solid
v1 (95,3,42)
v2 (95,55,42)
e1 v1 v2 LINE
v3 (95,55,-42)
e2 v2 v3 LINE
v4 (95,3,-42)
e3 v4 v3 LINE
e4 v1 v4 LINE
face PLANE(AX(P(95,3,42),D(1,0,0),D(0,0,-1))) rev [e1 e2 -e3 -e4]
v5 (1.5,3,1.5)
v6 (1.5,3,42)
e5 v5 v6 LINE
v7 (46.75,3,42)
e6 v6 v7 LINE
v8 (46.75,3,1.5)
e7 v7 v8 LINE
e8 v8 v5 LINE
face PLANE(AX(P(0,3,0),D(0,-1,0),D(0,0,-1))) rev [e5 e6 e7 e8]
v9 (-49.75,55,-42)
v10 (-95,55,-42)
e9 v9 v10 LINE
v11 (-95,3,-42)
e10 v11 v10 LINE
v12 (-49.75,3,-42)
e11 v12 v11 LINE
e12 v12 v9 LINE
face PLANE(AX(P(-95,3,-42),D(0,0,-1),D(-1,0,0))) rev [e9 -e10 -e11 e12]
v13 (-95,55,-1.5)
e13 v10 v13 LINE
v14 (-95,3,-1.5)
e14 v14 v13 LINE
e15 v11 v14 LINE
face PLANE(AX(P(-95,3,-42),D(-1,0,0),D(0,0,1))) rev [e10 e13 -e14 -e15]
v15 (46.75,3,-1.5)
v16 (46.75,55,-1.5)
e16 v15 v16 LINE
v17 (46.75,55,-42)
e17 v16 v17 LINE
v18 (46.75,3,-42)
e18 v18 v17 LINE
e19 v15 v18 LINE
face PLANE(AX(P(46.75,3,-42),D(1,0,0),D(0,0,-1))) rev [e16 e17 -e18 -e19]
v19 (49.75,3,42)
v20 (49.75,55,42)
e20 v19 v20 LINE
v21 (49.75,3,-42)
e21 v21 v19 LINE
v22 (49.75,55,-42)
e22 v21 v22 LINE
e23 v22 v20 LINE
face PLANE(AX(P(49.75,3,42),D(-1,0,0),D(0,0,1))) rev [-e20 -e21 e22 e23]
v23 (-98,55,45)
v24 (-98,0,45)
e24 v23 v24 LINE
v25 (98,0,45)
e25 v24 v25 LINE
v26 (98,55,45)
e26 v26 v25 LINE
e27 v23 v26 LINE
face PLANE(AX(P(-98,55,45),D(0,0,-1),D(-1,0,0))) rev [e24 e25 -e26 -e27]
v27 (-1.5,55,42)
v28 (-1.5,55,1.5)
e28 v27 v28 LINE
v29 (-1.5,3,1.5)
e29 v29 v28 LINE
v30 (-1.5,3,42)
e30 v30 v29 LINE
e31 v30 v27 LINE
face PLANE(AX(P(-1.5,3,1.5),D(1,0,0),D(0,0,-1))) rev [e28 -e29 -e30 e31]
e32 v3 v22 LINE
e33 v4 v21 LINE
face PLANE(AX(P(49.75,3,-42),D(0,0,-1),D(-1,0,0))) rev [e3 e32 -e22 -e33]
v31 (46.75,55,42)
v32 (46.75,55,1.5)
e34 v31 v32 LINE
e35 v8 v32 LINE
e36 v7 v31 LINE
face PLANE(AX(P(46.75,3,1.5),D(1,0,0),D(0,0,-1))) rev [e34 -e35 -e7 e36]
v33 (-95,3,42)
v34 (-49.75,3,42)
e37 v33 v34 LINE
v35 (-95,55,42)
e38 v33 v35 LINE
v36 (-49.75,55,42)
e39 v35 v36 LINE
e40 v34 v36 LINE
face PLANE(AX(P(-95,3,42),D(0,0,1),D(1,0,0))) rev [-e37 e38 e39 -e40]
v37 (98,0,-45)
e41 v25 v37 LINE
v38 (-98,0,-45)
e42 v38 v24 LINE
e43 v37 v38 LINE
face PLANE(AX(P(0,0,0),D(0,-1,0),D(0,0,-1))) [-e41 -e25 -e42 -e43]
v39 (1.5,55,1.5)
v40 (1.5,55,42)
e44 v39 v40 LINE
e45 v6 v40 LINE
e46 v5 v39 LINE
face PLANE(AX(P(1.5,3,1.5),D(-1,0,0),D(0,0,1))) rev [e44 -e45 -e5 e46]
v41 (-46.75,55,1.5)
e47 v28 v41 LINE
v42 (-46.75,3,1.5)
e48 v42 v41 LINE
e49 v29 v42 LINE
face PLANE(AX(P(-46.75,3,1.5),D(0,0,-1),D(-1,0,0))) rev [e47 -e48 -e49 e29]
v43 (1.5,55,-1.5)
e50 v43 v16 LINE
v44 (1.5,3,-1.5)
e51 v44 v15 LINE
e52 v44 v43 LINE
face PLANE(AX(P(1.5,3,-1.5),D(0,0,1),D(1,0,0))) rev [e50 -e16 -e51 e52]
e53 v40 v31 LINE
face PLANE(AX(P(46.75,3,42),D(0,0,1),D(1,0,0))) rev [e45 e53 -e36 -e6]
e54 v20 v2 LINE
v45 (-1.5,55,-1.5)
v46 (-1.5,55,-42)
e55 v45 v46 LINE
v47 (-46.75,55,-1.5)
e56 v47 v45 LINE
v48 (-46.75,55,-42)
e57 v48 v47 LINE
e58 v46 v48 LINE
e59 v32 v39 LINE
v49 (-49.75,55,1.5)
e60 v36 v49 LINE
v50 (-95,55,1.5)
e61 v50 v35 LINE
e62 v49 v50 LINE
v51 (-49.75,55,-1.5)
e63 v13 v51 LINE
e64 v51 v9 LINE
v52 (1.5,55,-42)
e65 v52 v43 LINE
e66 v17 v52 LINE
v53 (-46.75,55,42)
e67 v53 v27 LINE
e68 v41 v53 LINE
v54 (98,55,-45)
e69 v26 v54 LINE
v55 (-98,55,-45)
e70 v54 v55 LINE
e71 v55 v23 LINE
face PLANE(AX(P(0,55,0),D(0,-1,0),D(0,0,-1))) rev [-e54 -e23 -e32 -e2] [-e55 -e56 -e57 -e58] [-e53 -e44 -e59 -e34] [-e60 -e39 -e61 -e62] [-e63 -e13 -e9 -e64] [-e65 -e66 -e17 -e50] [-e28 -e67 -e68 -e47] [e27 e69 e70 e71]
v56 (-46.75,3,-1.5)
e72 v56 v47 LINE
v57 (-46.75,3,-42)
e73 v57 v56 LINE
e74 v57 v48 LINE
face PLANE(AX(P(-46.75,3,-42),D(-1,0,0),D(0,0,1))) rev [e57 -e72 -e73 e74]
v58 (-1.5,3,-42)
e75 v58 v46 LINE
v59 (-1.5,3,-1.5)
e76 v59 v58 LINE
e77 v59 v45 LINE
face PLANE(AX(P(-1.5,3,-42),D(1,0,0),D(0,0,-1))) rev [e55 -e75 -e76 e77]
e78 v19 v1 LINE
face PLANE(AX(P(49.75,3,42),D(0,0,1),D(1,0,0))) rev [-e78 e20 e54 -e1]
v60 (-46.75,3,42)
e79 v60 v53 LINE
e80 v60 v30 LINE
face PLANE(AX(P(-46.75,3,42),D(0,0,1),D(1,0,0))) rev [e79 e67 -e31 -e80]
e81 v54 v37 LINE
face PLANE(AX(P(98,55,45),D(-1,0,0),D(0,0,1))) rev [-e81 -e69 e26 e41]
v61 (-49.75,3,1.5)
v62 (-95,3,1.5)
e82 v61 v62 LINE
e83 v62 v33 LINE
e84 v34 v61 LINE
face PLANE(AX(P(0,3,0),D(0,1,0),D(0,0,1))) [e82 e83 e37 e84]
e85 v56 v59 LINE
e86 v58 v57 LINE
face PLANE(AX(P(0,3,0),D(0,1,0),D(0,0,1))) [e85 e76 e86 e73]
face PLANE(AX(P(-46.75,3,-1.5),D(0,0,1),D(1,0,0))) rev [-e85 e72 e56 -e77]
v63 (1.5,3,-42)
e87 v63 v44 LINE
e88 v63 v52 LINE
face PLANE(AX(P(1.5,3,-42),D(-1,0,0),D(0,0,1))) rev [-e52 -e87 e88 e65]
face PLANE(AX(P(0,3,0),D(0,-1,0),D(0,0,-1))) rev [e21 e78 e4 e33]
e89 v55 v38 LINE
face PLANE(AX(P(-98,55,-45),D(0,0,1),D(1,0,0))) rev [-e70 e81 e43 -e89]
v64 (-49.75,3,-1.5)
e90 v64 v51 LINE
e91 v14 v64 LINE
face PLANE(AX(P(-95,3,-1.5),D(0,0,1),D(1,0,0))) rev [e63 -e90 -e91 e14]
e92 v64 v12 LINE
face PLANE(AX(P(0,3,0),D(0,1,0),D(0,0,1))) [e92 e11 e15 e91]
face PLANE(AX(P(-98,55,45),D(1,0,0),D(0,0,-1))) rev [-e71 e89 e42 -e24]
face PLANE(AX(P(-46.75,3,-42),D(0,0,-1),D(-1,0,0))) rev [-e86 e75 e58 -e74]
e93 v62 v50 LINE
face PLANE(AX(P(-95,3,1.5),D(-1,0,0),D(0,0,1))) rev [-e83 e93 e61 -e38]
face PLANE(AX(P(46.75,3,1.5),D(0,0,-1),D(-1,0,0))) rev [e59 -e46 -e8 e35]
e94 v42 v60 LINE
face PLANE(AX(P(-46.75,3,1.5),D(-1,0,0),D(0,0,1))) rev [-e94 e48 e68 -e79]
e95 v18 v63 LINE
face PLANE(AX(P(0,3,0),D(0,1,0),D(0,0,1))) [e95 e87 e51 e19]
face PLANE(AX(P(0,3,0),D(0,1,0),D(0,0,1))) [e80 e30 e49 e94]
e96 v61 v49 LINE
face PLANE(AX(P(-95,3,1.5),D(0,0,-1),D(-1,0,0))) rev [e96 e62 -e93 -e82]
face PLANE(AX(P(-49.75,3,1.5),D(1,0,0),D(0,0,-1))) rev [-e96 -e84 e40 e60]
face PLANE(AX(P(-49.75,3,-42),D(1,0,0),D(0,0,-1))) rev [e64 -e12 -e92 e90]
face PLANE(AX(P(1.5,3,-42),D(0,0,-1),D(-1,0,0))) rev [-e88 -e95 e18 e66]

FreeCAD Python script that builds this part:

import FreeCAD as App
import Part
import Sketcher
Q = App.Units.Quantity


def add_polygon(sketch, points):
    """Adds a closed chain of lines whose ends are joined by coincident constraints."""
    first, n = sketch.GeometryCount, len(points)
    for a, b in zip(points, points[1:] + points[:1]):
        sketch.addGeometry(Part.LineSegment(App.Vector(*a, 0), App.Vector(*b, 0)), False)
    for i in range(n):
        sketch.addConstraint(Sketcher.Constraint("Coincident", first + i, 2, first + (i + 1) % n, 1))

doc = App.newDocument("Part")
params = doc.addObject("Spreadsheet::Sheet", "Params")
for row, (alias, value) in enumerate([
    ("sketch1_width", "196 mm"),
    ("sketch1_height", "90 mm"),
    ("pad1_length", "55 mm"),
    ("sketch2_height", "84 mm"),
    ("sketch2_height2", "40.5 mm"),
    ("pocket1_length", "52 mm"),
], start=1):
    params.set(f"A{row}", alias)
    params.set(f"B{row}", "=" + value)
    params.setAlias(f"B{row}", alias)

body = doc.addObject("PartDesign::Body", "Body")

sketch1 = body.newObject("Sketcher::SketchObject", "Sketch")
sketch1.AttachmentSupport = (doc.getObject("XZ_Plane"), [""])
sketch1.MapMode = "FlatFace"
add_polygon(sketch1, [(-98, -45), (-98, 45), (98, 45), (98, -45)])
sketch1.addConstraint([
    Sketcher.Constraint("Vertical", 0),
    Sketcher.Constraint("Horizontal", 1),
    Sketcher.Constraint("Vertical", 2),
    Sketcher.Constraint("Horizontal", 3),
    Sketcher.Constraint("Symmetric", 0, 2, 2, 2, -1, 1),
    Sketcher.Constraint("DistanceX", 1, 1, 1, 2, Q("196 mm")),
    Sketcher.Constraint("DistanceY", 0, 1, 0, 2, Q("90 mm")),
])
sketch1.setExpression("Constraints[9]", "Params.sketch1_width")
sketch1.setExpression("Constraints[10]", "Params.sketch1_height")
pad1 = body.newObject("PartDesign::Pad", "Pad")
pad1.Profile = sketch1
pad1.setExpression("Length", "Params.pad1_length")
pad1.Reversed = True

sketch2 = body.newObject("Sketcher::SketchObject", "Sketch001")
sketch2.AttachmentSupport = (doc.getObject("XZ_Plane"), [""])
sketch2.MapMode = "FlatFace"
sketch2.AttachmentOffset = App.Placement(App.Vector(0, 0, -55), App.Rotation())
add_polygon(sketch2, [(-95, -42), (-95, -1.5), (-49.75, -1.5), (-49.75, -42)])
add_polygon(sketch2, [(-95, 1.5), (-95, 42), (-49.75, 42), (-49.75, 1.5)])
add_polygon(sketch2, [(-46.75, -42), (-46.75, -1.5), (-1.5, -1.5), (-1.5, -42)])
add_polygon(sketch2, [(-46.75, 1.5), (-46.75, 42), (-1.5, 42), (-1.5, 1.5)])
add_polygon(sketch2, [(1.5, -42), (1.5, -1.5), (46.75, -1.5), (46.75, -42)])
add_polygon(sketch2, [(1.5, 1.5), (1.5, 42), (46.75, 42), (46.75, 1.5)])
add_polygon(sketch2, [(49.75, -42), (49.75, 42), (95, 42), (95, -42)])
sketch2.addConstraint([
    Sketcher.Constraint("Vertical", 0),
    Sketcher.Constraint("Horizontal", 1),
    Sketcher.Constraint("Vertical", 2),
    Sketcher.Constraint("Horizontal", 3),
    Sketcher.Constraint("Vertical", 4),
    Sketcher.Constraint("Horizontal", 5),
    Sketcher.Constraint("Vertical", 6),
    Sketcher.Constraint("Horizontal", 7),
    Sketcher.Constraint("Vertical", 8),
    Sketcher.Constraint("Horizontal", 9),
    Sketcher.Constraint("Vertical", 10),
    Sketcher.Constraint("Horizontal", 11),
    Sketcher.Constraint("Vertical", 12),
    Sketcher.Constraint("Horizontal", 13),
    Sketcher.Constraint("Vertical", 14),
    Sketcher.Constraint("Horizontal", 15),
    Sketcher.Constraint("Vertical", 16),
    Sketcher.Constraint("Horizontal", 17),
    Sketcher.Constraint("Vertical", 18),
    Sketcher.Constraint("Horizontal", 19),
    Sketcher.Constraint("Vertical", 20),
    Sketcher.Constraint("Horizontal", 21),
    Sketcher.Constraint("Vertical", 22),
    Sketcher.Constraint("Horizontal", 23),
    Sketcher.Constraint("Vertical", 24),
    Sketcher.Constraint("Horizontal", 25),
    Sketcher.Constraint("Vertical", 26),
    Sketcher.Constraint("Horizontal", 27),
    Sketcher.Constraint("Symmetric", 14, 2, 16, 2, -1, 1),
    Sketcher.Constraint("Symmetric", 12, 2, 18, 2, -1, 1),
    Sketcher.Constraint("Symmetric", 10, 2, 20, 2, -1, 1),
    Sketcher.Constraint("Symmetric", 8, 2, 22, 2, -1, 1),
    Sketcher.Constraint("Symmetric", 2, 2, 24, 2, -1, 1),
    Sketcher.Constraint("Symmetric", 4, 2, 26, 2, -1, 1),
    Sketcher.Constraint("Symmetric", 9, 2, 16, 2, -2),
    Sketcher.Constraint("Symmetric", 11, 2, 18, 2, -2),
    Sketcher.Constraint("Symmetric", 5, 2, 24, 2, -2),
    Sketcher.Constraint("Symmetric", 0, 2, 7, 2, -1),
    Sketcher.Constraint("Horizontal", 1, 2, 8, 2),
    Sketcher.Constraint("Horizontal", 3, 2, 10, 2),
    Sketcher.Constraint("Equal", 7, 9),
    Sketcher.Constraint("DistanceY", 24, 1, 24, 2, Q("84 mm")),
    Sketcher.Constraint("DistanceY", 0, 1, 0, 2, Q("40.5 mm")),
    Sketcher.Constraint("DistanceX", 0, 2, -1, 1, Q("95 mm")),
    Sketcher.Constraint("DistanceX", 1, 2, 8, 2, Q("3 mm")),
    Sketcher.Constraint("DistanceX", 9, 2, 16, 2, Q("3 mm")),
])
sketch2.setExpression("Constraints[69]", "Params.sketch2_height")
sketch2.setExpression("Constraints[70]", "Params.sketch2_height2")
pocket1 = body.newObject("PartDesign::Pocket", "Pocket")
pocket1.Profile = sketch2
pocket1.setExpression("Length", "Params.pocket1_length")
pocket1.Reversed = True

doc.recompute()
